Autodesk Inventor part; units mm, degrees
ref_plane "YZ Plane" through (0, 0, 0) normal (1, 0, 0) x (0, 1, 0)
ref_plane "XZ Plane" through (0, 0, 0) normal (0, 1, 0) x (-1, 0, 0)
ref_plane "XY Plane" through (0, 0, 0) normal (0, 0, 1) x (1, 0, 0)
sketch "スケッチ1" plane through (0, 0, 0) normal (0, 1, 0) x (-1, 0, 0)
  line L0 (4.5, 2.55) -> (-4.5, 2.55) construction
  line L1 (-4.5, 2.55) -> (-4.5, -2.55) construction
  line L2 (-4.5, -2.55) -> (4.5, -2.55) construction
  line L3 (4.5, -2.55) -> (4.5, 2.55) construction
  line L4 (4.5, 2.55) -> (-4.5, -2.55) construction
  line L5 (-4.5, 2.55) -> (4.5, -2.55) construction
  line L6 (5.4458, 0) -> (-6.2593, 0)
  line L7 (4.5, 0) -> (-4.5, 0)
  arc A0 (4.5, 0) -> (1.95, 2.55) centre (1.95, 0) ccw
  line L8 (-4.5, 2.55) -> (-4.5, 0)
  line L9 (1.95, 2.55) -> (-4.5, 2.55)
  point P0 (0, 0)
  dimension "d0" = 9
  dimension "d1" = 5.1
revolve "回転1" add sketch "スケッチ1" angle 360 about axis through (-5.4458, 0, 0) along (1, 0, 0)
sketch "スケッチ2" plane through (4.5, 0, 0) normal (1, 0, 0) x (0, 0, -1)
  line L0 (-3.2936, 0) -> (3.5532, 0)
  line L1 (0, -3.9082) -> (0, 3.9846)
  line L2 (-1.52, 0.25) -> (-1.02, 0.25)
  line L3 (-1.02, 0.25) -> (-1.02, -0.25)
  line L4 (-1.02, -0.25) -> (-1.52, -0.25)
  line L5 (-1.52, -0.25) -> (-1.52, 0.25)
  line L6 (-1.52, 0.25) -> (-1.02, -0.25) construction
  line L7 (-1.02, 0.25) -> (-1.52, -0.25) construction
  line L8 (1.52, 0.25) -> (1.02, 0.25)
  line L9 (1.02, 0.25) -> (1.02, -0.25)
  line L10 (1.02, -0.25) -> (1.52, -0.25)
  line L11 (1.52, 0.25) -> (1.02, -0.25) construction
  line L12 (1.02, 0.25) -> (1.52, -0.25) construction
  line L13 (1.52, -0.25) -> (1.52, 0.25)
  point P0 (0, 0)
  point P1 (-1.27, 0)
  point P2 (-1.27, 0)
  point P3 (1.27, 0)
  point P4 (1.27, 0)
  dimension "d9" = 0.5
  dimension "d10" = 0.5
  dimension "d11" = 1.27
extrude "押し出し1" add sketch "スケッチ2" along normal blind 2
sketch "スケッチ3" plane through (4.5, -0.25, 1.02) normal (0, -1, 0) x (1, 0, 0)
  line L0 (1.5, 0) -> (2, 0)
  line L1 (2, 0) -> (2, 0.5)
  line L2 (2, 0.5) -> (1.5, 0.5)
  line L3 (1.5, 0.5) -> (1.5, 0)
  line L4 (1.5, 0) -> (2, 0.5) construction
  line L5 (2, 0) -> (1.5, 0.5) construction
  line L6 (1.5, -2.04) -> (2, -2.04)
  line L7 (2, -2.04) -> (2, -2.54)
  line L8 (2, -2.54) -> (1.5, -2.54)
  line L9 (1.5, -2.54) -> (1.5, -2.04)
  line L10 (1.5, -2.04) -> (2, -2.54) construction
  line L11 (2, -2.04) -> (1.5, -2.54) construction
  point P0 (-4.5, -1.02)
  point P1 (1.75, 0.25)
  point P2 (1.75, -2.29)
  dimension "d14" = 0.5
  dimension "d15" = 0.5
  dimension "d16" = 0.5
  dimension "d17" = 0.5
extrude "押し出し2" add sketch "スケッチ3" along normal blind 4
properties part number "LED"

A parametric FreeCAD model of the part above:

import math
import FreeCAD as App
import Part
import Sketcher

doc = App.newDocument("Part")
body = doc.addObject("PartDesign::Body", "Body")

# Sketch on XZ plane
sketch1 = body.newObject("Sketcher::SketchObject", "Sketch")
sketch1.AttachmentSupport = (doc.getObject("XZ_Plane"), [""])
sketch1.MapMode = "FlatFace"
sketch1.addGeometry([
    Part.LineSegment(App.Vector(4.5, 0, 0), App.Vector(-4.5, 0, 0)),
    Part.ArcOfCircle(Part.Circle(App.Vector(-1.9, 0, 0), App.Vector(0, 0, 1), 2.5), math.radians(90), math.radians(180)),
    Part.LineSegment(App.Vector(-1.9, 2.5, 0), App.Vector(4.5, 2.5, 0)),
    Part.LineSegment(App.Vector(4.5, 2.5, 0), App.Vector(4.5, 0, 0)),
], False)
sketch1.addConstraint([
    Sketcher.Constraint("Coincident", 0, 2, 1, 2),
    Sketcher.Constraint("Tangent", 1, 1, 2, 1),
    Sketcher.Constraint("Coincident", 2, 2, 3, 1),
    Sketcher.Constraint("Coincident", 3, 2, 0, 1),
    Sketcher.Constraint("Horizontal", 0),
    Sketcher.Constraint("Horizontal", 2),
    Sketcher.Constraint("Vertical", 3),
    Sketcher.Constraint("Symmetric", 0, 2, 3, 2, -1, 1),
    Sketcher.Constraint("PointOnObject", 1, 3, -1),
    Sketcher.Constraint("DistanceX", 0, 2, 0, 1, 9.0),
    Sketcher.Constraint("Radius", 1, 2.55),
])
revolution = body.newObject("PartDesign::Revolution", "Revolution")
revolution.Profile = sketch1
revolution.ReferenceAxis = (sketch1, ["H_Axis"])
revolution.Angle = 360

# Sketch on YZ plane
sketch2 = body.newObject("Sketcher::SketchObject", "Sketch001")
sketch2.AttachmentSupport = (doc.getObject("YZ_Plane"), [""])
sketch2.MapMode = "FlatFace"
sketch2.AttachmentOffset = App.Placement(App.Vector(0, 0, 4.5), App.Rotation())
sketch2.addGeometry([
    Part.LineSegment(App.Vector(0.2, 1.5, 0), App.Vector(-0.2, 1.5, 0)),  # 0
    Part.LineSegment(App.Vector(-0.2, 1.5, 0), App.Vector(-0.2, 1, 0)),  # 1
    Part.LineSegment(App.Vector(-0.2, 1, 0), App.Vector(0.2, 1, 0)),  # 2
    Part.LineSegment(App.Vector(0.2, 1, 0), App.Vector(0.2, 1.5, 0)),  # 3
    Part.LineSegment(App.Vector(0.2, -1, 0), App.Vector(-0.2, -1, 0)),  # 4
    Part.LineSegment(App.Vector(-0.2, -1, 0), App.Vector(-0.2, -1.5, 0)),  # 5
    Part.LineSegment(App.Vector(-0.2, -1.5, 0), App.Vector(0.2, -1.5, 0)),  # 6
    Part.LineSegment(App.Vector(0.2, -1.5, 0), App.Vector(0.2, -1, 0)),  # 7
], False)
sketch2.addConstraint([
    Sketcher.Constraint("Coincident", 0, 2, 1, 1),
    Sketcher.Constraint("Coincident", 1, 2, 2, 1),
    Sketcher.Constraint("Coincident", 2, 2, 3, 1),
    Sketcher.Constraint("Coincident", 3, 2, 0, 1),
    Sketcher.Constraint("Coincident", 4, 2, 5, 1),
    Sketcher.Constraint("Coincident", 5, 2, 6, 1),
    Sketcher.Constraint("Coincident", 6, 2, 7, 1),
    Sketcher.Constraint("Coincident", 7, 2, 4, 1),
    Sketcher.Constraint("Horizontal", 0),
    Sketcher.Constraint("Vertical", 1),
    Sketcher.Constraint("Horizontal", 2),
    Sketcher.Constraint("Vertical", 3),
    Sketcher.Constraint("Horizontal", 4),
    Sketcher.Constraint("Vertical", 5),
    Sketcher.Constraint("Horizontal", 6),
    Sketcher.Constraint("Vertical", 7),
    Sketcher.Constraint("Symmetric", 2, 2, 4, 2, -1, 1),
    Sketcher.Constraint("Symmetric", 0, 2, 6, 2, -1, 1),
    Sketcher.Constraint("Vertical", 1, 2, 4, 2),
    Sketcher.Constraint("Equal", 6, 1),
    Sketcher.Constraint("DistanceX", 0, 2, 0, 1, 0.5),
    Sketcher.Constraint("DistanceY", -1, 1, 0, 2, 1.52),
])
pad1 = body.newObject("PartDesign::Pad", "Pad")
pad1.Profile = sketch2
pad1.Length = 2

# Sketch on XZ plane
sketch3 = body.newObject("Sketcher::SketchObject", "Sketch002")
sketch3.AttachmentSupport = (doc.getObject("XZ_Plane"), [""])
sketch3.MapMode = "FlatFace"
sketch3.AttachmentOffset = App.Placement(App.Vector(0, 0, 0.25), App.Rotation())
sketch3.addGeometry([
    Part.LineSegment(App.Vector(6, 1.5, 0), App.Vector(6, 1, 0)),  # 0
    Part.LineSegment(App.Vector(6, 1, 0), App.Vector(6.5, 1, 0)),  # 1
    Part.LineSegment(App.Vector(6.5, 1, 0), App.Vector(6.5, 1.5, 0)),  # 2
    Part.LineSegment(App.Vector(6.5, 1.5, 0), App.Vector(6, 1.5, 0)),  # 3
    Part.LineSegment(App.Vector(6.5, -1, 0), App.Vector(6, -1, 0)),  # 4
    Part.LineSegment(App.Vector(6, -1, 0), App.Vector(6, -1.5, 0)),  # 5
    Part.LineSegment(App.Vector(6, -1.5, 0), App.Vector(6.5, -1.5, 0)),  # 6
    Part.LineSegment(App.Vector(6.5, -1.5, 0), App.Vector(6.5, -1, 0)),  # 7
], False)
sketch3.addConstraint([
    Sketcher.Constraint("Coincident", 0, 2, 1, 1),
    Sketcher.Constraint("Coincident", 1, 2, 2, 1),
    Sketcher.Constraint("Coincident", 2, 2, 3, 1),
    Sketcher.Constraint("Coincident", 3, 2, 0, 1),
    Sketcher.Constraint("Coincident", 4, 2, 5, 1),
    Sketcher.Constraint("Coincident", 5, 2, 6, 1),
    Sketcher.Constraint("Coincident", 6, 2, 7, 1),
    Sketcher.Constraint("Coincident", 7, 2, 4, 1),
    Sketcher.Constraint("Vertical", 0),
    Sketcher.Constraint("Horizontal", 1),
    Sketcher.Constraint("Vertical", 2),
    Sketcher.Constraint("Horizontal", 3),
    Sketcher.Constraint("Horizontal", 4),
    Sketcher.Constraint("Vertical", 5),
    Sketcher.Constraint("Horizontal", 6),
    Sketcher.Constraint("Vertical", 7),
    Sketcher.Constraint("Symmetric", 0, 2, 4, 2, -1),
    Sketcher.Constraint("Symmetric", 2, 2, 6, 2, -1),
    Sketcher.Constraint("Equal", 6, 0),
    Sketcher.Constraint("DistanceX", 1, 1, 1, 2, 0.5),
    Sketcher.Constraint("DistanceX", -1, 1, 0, 2, 6.0),
    Sketcher.Constraint("DistanceY", -1, 1, 0, 2, 1.02),
])
pad2 = body.newObject("PartDesign::Pad", "Pad001")
pad2.Profile = sketch3
pad2.Length = 4

doc.recompute()
